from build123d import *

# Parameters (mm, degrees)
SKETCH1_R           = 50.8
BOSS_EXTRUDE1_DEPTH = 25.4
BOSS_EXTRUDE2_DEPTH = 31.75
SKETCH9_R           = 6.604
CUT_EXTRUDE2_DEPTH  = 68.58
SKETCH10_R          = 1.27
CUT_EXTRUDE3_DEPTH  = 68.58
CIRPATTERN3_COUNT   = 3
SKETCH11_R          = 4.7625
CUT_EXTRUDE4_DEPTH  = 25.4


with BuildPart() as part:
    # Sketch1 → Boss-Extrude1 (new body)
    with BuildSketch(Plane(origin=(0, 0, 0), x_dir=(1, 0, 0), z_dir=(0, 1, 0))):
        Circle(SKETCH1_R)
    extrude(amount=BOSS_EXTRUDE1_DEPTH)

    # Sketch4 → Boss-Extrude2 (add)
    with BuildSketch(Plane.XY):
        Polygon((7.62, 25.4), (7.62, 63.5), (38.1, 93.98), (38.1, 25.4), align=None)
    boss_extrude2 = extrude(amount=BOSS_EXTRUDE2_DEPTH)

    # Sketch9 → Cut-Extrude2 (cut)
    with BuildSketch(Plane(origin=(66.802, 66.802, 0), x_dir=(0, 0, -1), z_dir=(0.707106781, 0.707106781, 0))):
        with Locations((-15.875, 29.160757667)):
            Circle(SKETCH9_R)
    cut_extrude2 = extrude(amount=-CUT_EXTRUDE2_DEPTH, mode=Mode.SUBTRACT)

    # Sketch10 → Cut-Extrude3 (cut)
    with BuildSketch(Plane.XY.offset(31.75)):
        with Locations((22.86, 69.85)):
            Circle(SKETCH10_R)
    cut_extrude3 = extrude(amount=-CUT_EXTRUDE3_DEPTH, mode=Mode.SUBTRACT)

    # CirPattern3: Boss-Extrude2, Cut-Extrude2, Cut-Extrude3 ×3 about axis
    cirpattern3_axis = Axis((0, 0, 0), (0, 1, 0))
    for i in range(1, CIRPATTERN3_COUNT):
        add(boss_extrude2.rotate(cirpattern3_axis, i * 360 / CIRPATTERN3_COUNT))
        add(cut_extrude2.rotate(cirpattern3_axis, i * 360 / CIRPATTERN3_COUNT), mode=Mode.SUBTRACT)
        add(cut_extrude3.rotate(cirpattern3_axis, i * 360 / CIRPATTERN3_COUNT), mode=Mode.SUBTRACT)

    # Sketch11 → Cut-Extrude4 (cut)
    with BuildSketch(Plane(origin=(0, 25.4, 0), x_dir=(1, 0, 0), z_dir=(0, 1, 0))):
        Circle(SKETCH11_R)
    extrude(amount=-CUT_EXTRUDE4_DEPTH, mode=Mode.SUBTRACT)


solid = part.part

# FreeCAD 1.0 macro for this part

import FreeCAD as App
import Part
import Sketcher
from FreeCAD import Vector
Q = App.Units.Quantity


def add_polygon(sketch, points):
    """Adds a closed chain of lines whose ends are joined by coincident constraints."""
    first, n = sketch.GeometryCount, len(points)
    for a, b in zip(points, points[1:] + points[:1]):
        sketch.addGeometry(Part.LineSegment(App.Vector(*a, 0), App.Vector(*b, 0)), False)
    for i in range(n):
        sketch.addConstraint(Sketcher.Constraint("Coincident", first + i, 2, first + (i + 1) % n, 1))

doc = App.newDocument("Part")
body = doc.addObject("PartDesign::Body", "Body")

sketch1 = body.newObject("Sketcher::SketchObject", "Sketch")
sketch1.AttachmentSupport = (doc.getObject("XZ_Plane"), [""])
sketch1.MapMode = "FlatFace"
sketch1.addGeometry(Part.Circle(Vector(0, 0, 0), Vector(0, 0, 1), 51), False)
sketch1.addConstraint([
    Sketcher.Constraint("Coincident", 0, 3, -1, 1),
    Sketcher.Constraint("Diameter", 0, Q("4 in")),
])
pad1 = body.newObject("PartDesign::Pad", "Pad")
pad1.Profile = sketch1
pad1.Length = Q("1 in")
pad1.Reversed = True

sketch2 = body.newObject("Sketcher::SketchObject", "Sketch001")
sketch2.AttachmentSupport = (doc.getObject("XY_Plane"), [""])
sketch2.MapMode = "FlatFace"
add_polygon(sketch2, [(8, 64), (8, 25), (38, 25), (38, 94)])
sketch2.addConstraint([
    Sketcher.Constraint("Vertical", 0),
    Sketcher.Constraint("Horizontal", 1),
    Sketcher.Constraint("Vertical", 2),
    Sketcher.Constraint("DistanceX", 1, 1, 1, 2, Q("1.2 in")),
    Sketcher.Constraint("DistanceY", 0, 2, 0, 1, Q("1.5 in")),
    Sketcher.Constraint("DistanceY", 2, 1, 2, 2, Q("2.7 in")),
    Sketcher.Constraint("DistanceY", -1, 1, 0, 2, Q("1 in")),
    Sketcher.Constraint("DistanceX", -1, 1, 0, 2, Q("0.3 in")),
])
pad2 = body.newObject("PartDesign::Pad", "Pad001")
pad2.Profile = sketch2
pad2.Length = Q("1.25 in")

sketch3 = body.newObject("Sketcher::SketchObject", "Sketch002")
sketch3.Placement = App.Placement(Vector(66.802, 66.802, 0), App.Rotation(Vector(0, 0, -1), Vector(-0.707106781, 0.707106781, 0), Vector(0.707106781, 0.707106781, 0), "ZXY"))
sketch3.addGeometry(Part.Circle(Vector(-16, 29, 0), Vector(0, 0, 1), 7), False)
sketch3.addConstraint([
    Sketcher.Constraint("Diameter", 0, Q("0.52 in")),
    Sketcher.Constraint("DistanceX", 0, 3, -1, 1, Q("0.625 in")),
    Sketcher.Constraint("DistanceY", -1, 1, 0, 3, Q("29.160758 mm")),
])
pocket1 = body.newObject("PartDesign::Pocket", "Pocket")
pocket1.Profile = sketch3
pocket1.Length = Q("2.7 in")

sketch4 = body.newObject("Sketcher::SketchObject", "Sketch003")
sketch4.AttachmentSupport = (doc.getObject("XY_Plane"), [""])
sketch4.MapMode = "FlatFace"
sketch4.AttachmentOffset = App.Placement(Vector(0, 0, 1.25 * 25.4), App.Rotation())
sketch4.addGeometry(Part.Circle(Vector(22.9, 69.8, 0), Vector(0, 0, 1), 1.3), False)
sketch4.addConstraint([
    Sketcher.Constraint("Diameter", 0, Q("0.1 in")),
    Sketcher.Constraint("DistanceX", -1, 1, 0, 3, Q("0.9 in")),
    Sketcher.Constraint("DistanceY", -1, 1, 0, 3, Q("2.75 in")),
])
pocket2 = body.newObject("PartDesign::Pocket", "Pocket001")
pocket2.Profile = sketch4
pocket2.Length = Q("2.7 in")
doc.recompute()

polarpattern = body.newObject("PartDesign::PolarPattern", "PolarPattern")
polarpattern.Originals = [pad2, pocket1, pocket2]
polarpattern.Axis = (doc.getObject("Y_Axis"), [""])
polarpattern.Angle = 360
polarpattern.Occurrences = 3
body.Tip = polarpattern

sketch5 = body.newObject("Sketcher::SketchObject", "Sketch004")
sketch5.AttachmentSupport = (doc.getObject("XZ_Plane"), [""])
sketch5.MapMode = "FlatFace"
sketch5.AttachmentOffset = App.Placement(Vector(0, 0, -1 * 25.4), App.Rotation())
sketch5.addGeometry(Part.Circle(Vector(0, 0, 0), Vector(0, 0, 1), 4.8), False)
sketch5.addConstraint([
    Sketcher.Constraint("Coincident", 0, 3, -1, 1),
    Sketcher.Constraint("Diameter", 0, Q("0.375 in")),
])
pocket3 = body.newObject("PartDesign::Pocket", "Pocket002")
pocket3.Profile = sketch5
pocket3.Length = Q("1 in")
pocket3.Reversed = True

doc.recompute()
